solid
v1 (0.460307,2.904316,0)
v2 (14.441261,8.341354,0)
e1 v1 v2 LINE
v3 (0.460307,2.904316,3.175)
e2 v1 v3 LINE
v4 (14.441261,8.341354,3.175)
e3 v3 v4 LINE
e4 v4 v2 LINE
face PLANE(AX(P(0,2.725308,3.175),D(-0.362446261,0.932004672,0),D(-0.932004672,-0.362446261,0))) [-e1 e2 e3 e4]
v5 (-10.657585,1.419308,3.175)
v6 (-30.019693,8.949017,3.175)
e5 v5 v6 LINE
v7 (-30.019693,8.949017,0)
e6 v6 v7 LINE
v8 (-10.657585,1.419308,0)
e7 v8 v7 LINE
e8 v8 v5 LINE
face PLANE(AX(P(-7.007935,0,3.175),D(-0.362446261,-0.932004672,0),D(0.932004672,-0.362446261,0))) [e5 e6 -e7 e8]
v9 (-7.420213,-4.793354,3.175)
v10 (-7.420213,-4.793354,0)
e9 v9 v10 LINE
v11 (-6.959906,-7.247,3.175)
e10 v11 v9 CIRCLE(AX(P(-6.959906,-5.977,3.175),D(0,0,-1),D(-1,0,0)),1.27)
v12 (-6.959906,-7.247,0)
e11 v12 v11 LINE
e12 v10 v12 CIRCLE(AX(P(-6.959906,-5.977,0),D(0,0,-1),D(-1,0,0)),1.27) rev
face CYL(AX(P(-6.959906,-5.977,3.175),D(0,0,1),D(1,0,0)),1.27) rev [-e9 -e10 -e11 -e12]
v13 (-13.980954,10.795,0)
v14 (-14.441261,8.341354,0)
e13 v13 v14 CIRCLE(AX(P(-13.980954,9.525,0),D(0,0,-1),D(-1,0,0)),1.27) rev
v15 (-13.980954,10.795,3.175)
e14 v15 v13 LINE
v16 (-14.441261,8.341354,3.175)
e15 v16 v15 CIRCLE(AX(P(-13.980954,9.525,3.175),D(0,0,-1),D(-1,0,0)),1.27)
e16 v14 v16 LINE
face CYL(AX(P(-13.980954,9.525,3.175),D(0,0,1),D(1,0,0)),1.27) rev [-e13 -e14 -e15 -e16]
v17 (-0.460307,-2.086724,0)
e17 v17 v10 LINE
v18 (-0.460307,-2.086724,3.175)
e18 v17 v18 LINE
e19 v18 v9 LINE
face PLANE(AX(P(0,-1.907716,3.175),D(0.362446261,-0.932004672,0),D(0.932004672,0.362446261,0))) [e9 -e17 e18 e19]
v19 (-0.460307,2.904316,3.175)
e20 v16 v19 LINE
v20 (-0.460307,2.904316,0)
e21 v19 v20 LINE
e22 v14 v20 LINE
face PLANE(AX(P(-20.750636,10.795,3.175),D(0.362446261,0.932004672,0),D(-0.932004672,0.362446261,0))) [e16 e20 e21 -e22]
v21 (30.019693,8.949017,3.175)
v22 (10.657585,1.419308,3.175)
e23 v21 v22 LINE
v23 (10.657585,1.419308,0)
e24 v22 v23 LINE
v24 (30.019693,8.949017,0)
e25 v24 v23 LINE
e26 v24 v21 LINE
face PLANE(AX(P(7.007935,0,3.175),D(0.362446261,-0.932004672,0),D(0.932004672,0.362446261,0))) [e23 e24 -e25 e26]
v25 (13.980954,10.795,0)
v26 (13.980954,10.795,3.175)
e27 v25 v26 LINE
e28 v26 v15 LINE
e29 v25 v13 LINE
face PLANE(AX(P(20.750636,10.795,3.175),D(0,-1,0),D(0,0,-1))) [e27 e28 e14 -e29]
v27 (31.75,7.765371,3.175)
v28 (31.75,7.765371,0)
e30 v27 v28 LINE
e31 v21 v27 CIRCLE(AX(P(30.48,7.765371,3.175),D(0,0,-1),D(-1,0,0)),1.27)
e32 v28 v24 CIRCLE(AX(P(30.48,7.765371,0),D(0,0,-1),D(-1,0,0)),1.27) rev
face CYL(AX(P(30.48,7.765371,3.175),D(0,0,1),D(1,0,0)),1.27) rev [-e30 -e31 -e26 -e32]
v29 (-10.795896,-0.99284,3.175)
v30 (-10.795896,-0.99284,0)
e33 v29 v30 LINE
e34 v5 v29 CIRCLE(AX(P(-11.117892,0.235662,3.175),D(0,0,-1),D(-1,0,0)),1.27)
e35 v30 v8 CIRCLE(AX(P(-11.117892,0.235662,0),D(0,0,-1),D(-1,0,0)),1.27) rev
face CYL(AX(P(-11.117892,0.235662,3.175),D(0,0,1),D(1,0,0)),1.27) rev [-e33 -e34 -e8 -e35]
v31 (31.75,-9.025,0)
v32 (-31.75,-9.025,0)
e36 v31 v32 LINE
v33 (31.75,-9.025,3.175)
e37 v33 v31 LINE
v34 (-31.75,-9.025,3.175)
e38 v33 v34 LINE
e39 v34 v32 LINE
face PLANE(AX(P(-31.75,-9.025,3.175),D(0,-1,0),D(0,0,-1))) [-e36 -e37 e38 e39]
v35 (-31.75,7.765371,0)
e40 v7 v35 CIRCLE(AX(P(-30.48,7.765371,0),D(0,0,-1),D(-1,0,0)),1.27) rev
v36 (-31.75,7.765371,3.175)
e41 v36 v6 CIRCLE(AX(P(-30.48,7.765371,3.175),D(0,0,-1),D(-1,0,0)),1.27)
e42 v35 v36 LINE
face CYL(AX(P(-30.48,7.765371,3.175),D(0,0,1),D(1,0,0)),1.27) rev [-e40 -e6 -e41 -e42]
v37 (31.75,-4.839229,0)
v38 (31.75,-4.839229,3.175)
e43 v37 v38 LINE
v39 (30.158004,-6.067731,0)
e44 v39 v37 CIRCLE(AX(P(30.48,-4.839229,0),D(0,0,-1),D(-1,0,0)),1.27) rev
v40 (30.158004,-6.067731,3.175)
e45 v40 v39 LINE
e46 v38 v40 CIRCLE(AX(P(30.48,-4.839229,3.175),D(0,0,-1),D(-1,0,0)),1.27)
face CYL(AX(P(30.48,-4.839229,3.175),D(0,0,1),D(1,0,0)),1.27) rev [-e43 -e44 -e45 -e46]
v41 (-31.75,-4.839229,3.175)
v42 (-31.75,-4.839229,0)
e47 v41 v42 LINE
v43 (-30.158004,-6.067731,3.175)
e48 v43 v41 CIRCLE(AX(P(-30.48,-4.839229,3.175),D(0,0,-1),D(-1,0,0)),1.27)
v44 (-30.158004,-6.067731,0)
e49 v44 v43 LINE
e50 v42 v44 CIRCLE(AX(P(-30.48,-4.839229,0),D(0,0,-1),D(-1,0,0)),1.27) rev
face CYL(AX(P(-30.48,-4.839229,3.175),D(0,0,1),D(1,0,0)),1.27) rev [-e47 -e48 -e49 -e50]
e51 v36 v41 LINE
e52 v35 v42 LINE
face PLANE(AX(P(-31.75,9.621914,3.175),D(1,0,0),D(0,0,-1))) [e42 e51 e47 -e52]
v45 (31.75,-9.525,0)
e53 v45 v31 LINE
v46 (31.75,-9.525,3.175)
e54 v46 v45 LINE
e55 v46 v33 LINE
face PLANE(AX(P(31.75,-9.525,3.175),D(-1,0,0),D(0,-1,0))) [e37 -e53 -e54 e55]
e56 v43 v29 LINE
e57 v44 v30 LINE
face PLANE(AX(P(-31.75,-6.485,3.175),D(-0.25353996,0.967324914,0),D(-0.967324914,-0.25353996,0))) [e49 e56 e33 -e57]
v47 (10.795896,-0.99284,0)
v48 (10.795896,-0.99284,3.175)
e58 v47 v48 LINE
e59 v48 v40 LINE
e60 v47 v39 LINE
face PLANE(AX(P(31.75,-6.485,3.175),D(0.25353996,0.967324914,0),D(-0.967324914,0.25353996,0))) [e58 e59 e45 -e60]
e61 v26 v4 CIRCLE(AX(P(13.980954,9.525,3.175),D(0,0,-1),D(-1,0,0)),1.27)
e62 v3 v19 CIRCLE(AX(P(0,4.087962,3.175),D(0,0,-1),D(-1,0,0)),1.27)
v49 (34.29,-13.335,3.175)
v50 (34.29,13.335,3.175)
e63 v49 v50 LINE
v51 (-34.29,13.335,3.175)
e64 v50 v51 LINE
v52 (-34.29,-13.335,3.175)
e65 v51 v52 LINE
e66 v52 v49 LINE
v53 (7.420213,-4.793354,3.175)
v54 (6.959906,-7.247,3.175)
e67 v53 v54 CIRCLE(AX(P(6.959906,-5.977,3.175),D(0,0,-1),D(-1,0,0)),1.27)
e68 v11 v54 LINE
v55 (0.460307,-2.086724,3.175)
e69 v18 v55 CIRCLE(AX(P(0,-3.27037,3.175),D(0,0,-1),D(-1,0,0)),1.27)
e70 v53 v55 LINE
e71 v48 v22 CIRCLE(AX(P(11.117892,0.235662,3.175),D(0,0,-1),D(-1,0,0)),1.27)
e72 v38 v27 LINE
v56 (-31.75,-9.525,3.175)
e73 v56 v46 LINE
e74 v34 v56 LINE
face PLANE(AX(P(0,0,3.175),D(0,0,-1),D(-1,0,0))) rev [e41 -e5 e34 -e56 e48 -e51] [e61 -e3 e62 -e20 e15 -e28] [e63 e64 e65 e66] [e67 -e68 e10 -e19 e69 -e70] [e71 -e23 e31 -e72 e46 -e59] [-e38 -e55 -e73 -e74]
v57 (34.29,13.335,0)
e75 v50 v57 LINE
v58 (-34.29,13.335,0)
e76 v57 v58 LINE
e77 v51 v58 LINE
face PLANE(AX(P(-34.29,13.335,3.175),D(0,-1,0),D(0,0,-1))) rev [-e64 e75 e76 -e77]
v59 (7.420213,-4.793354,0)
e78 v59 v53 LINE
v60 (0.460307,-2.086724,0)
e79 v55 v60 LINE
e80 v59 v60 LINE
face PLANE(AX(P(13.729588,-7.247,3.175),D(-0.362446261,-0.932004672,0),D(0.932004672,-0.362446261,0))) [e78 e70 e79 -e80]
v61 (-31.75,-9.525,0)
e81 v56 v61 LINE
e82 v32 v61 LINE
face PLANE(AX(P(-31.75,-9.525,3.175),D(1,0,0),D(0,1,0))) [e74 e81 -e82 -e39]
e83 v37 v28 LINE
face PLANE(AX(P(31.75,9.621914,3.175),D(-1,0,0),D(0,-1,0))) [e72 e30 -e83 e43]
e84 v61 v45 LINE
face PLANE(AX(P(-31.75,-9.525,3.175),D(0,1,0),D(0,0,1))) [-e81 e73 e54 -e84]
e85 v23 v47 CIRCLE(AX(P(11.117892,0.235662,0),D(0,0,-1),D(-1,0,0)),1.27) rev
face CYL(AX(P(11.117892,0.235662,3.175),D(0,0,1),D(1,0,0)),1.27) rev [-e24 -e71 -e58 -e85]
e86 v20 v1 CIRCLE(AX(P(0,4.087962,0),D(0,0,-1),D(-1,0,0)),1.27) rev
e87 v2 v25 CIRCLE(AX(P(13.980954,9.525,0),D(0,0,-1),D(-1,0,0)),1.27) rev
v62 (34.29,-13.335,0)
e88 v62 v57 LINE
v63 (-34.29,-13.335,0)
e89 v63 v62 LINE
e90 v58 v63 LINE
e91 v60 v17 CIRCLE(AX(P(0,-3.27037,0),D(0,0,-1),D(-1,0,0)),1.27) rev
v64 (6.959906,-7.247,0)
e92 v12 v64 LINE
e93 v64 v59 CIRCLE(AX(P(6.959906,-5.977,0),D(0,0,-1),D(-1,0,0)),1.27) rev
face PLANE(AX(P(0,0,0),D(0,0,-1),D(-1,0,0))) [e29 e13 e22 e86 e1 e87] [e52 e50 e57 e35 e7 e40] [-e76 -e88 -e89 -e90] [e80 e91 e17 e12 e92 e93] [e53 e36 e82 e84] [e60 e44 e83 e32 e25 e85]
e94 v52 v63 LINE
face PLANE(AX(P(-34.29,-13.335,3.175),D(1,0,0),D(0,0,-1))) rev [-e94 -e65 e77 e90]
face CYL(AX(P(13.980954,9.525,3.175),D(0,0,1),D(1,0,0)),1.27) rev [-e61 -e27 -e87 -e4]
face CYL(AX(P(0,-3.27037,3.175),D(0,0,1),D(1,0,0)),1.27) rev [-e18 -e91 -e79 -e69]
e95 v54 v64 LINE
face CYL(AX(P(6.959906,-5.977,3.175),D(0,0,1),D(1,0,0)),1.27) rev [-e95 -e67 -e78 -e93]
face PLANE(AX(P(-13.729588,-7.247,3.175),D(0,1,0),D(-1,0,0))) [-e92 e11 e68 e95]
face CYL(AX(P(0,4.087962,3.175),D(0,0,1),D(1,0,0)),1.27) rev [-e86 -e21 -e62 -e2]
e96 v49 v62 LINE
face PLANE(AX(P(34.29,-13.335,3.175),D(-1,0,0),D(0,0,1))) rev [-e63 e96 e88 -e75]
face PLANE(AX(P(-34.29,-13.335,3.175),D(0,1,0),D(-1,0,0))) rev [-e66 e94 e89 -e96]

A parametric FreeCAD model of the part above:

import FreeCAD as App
import Part
import Sketcher

V = App.Vector
Q = App.Units.Quantity


def edges_at(feature, points):
    """Names of the edges that pass closest to the given points."""
    edges = feature.Shape.Edges
    near = lambda p: min(range(len(edges)), key=lambda i: edges[i].distToShape(Part.Vertex(*p))[0])
    return sorted({f"Edge{near(p) + 1}" for p in points})


def add_polygon(sketch, points):
    """Adds a closed chain of lines whose ends are joined by coincident constraints."""
    first, n = sketch.GeometryCount, len(points)
    for a, b in zip(points, points[1:] + points[:1]):
        sketch.addGeometry(Part.LineSegment(App.Vector(*a, 0), App.Vector(*b, 0)), False)
    for i in range(n):
        sketch.addConstraint(Sketcher.Constraint("Coincident", first + i, 2, first + (i + 1) % n, 1))

doc = App.newDocument("Part")
body = doc.addObject("PartDesign::Body", "Body")

sketch1 = body.newObject("Sketcher::SketchObject", "Sketch")
sketch1.AttachmentSupport = (doc.getObject("XY_Plane"), [""])
sketch1.MapMode = "FlatFace"
add_polygon(sketch1, [(-34.3, 13.3), (-34.3, -13.3), (34.3, -13.3), (34.3, 13.3)])
add_polygon(sketch1, [(31.8, -9.5), (-31.8, -9.5), (-31.8, -9), (31.8, -9)])
add_polygon(sketch1, [(-13.7, -7.2), (0, -1.9), (13.7, -7.2)])
add_polygon(sketch1, [(-31.8, -6.5), (-31.8, 9.6), (-7, 0)])
add_polygon(sketch1, [(31.8, -6.5), (7, 0), (31.8, 9.6)])
add_polygon(sketch1, [(0, 2.7), (-20.8, 10.8), (20.8, 10.8)])
sketch1.addConstraint([
    Sketcher.Constraint("Vertical", 0),
    Sketcher.Constraint("Horizontal", 1),
    Sketcher.Constraint("Vertical", 2),
    Sketcher.Constraint("Horizontal", 3),
    Sketcher.Constraint("Horizontal", 4),
    Sketcher.Constraint("Vertical", 5),
    Sketcher.Constraint("Horizontal", 6),
    Sketcher.Constraint("Vertical", 7),
    Sketcher.Constraint("Horizontal", 10),
    Sketcher.Constraint("Vertical", 11),
    Sketcher.Constraint("Vertical", 16),
    Sketcher.Constraint("Horizontal", 18),
    Sketcher.Constraint("Symmetric", 0, 2, 2, 2, -1, 1),
    Sketcher.Constraint("Symmetric", 12, 2, 14, 2, -1, 1),
    Sketcher.Constraint("Symmetric", 11, 2, 15, 2, -2),
    Sketcher.Constraint("PointOnObject", 8, 2, -2),
    Sketcher.Constraint("PointOnObject", 12, 2, -1),
    Sketcher.Constraint("PointOnObject", 19, 2, -2),
    Sketcher.Constraint("Parallel", 9, 12),
    Sketcher.Constraint("Parallel", 8, 15),
    Sketcher.Constraint("Parallel", 12, 17),
    Sketcher.Constraint("Parallel", 15, 19),
    Sketcher.Constraint("Horizontal", 13, 2, 16, 2),
    Sketcher.Constraint("Vertical", 5, 2, 11, 2),
    Sketcher.Constraint("Vertical", 7, 2, 15, 2),
    Sketcher.Constraint("DistanceX", 1, 1, 1, 2, Q("2.7 in")),
    Sketcher.Constraint("DistanceX", 4, 2, 4, 1, Q("2.5 in")),
    Sketcher.Constraint("DistanceY", 0, 2, 0, 1, Q("1.05 in")),
    Sketcher.Constraint("DistanceY", 4, 2, 3, 2, Q("0.9 in")),
    Sketcher.Constraint("DistanceY", 5, 2, 13, 2, Q("0.1 in")),
    Sketcher.Constraint("DistanceY", 17, 2, 3, 2, Q("0.1 in")),
    Sketcher.Constraint("DistanceY", 6, 2, 9, 2, Q("0.07 in")),
    Sketcher.Constraint("DistanceY", 5, 1, 5, 2, 0.5),
    Sketcher.Constraint("DistanceX", 18, 1, 18, 2, 41.501272),
    Sketcher.Constraint("DistanceX", 17, 2, 12, 2, 13.742701),
    Sketcher.Constraint("Distance", 17, 22.264519),
    Sketcher.Constraint("DistanceX", 10, 2, 10, 1, 27.459176),
])
pad1 = body.newObject("PartDesign::Pad", "Pad")
pad1.Profile = sketch1
pad1.Length = Q("0.125 in")
doc.recompute()

fillet = body.newObject("PartDesign::Fillet", "Fillet")
fillet.Base = (pad1, edges_at(pad1, [
    (20.751, 10.795, 1.587),
    (-20.751, 10.795, 1.587),
    (0, 2.725, 1.587),
    (-7.008, 0, 1.587),
    (-31.75, 9.622, 1.587),
    (-31.75, -6.485, 1.587),
    (7.008, 0, 1.587),
    (31.75, -6.485, 1.587),
    (31.75, 9.622, 1.587),
    (13.73, -7.247, 1.587),
    (0, -1.908, 1.587),
    (-13.73, -7.247, 1.587),
]))
fillet.Radius = Q("0.05 in")

doc.recompute()
